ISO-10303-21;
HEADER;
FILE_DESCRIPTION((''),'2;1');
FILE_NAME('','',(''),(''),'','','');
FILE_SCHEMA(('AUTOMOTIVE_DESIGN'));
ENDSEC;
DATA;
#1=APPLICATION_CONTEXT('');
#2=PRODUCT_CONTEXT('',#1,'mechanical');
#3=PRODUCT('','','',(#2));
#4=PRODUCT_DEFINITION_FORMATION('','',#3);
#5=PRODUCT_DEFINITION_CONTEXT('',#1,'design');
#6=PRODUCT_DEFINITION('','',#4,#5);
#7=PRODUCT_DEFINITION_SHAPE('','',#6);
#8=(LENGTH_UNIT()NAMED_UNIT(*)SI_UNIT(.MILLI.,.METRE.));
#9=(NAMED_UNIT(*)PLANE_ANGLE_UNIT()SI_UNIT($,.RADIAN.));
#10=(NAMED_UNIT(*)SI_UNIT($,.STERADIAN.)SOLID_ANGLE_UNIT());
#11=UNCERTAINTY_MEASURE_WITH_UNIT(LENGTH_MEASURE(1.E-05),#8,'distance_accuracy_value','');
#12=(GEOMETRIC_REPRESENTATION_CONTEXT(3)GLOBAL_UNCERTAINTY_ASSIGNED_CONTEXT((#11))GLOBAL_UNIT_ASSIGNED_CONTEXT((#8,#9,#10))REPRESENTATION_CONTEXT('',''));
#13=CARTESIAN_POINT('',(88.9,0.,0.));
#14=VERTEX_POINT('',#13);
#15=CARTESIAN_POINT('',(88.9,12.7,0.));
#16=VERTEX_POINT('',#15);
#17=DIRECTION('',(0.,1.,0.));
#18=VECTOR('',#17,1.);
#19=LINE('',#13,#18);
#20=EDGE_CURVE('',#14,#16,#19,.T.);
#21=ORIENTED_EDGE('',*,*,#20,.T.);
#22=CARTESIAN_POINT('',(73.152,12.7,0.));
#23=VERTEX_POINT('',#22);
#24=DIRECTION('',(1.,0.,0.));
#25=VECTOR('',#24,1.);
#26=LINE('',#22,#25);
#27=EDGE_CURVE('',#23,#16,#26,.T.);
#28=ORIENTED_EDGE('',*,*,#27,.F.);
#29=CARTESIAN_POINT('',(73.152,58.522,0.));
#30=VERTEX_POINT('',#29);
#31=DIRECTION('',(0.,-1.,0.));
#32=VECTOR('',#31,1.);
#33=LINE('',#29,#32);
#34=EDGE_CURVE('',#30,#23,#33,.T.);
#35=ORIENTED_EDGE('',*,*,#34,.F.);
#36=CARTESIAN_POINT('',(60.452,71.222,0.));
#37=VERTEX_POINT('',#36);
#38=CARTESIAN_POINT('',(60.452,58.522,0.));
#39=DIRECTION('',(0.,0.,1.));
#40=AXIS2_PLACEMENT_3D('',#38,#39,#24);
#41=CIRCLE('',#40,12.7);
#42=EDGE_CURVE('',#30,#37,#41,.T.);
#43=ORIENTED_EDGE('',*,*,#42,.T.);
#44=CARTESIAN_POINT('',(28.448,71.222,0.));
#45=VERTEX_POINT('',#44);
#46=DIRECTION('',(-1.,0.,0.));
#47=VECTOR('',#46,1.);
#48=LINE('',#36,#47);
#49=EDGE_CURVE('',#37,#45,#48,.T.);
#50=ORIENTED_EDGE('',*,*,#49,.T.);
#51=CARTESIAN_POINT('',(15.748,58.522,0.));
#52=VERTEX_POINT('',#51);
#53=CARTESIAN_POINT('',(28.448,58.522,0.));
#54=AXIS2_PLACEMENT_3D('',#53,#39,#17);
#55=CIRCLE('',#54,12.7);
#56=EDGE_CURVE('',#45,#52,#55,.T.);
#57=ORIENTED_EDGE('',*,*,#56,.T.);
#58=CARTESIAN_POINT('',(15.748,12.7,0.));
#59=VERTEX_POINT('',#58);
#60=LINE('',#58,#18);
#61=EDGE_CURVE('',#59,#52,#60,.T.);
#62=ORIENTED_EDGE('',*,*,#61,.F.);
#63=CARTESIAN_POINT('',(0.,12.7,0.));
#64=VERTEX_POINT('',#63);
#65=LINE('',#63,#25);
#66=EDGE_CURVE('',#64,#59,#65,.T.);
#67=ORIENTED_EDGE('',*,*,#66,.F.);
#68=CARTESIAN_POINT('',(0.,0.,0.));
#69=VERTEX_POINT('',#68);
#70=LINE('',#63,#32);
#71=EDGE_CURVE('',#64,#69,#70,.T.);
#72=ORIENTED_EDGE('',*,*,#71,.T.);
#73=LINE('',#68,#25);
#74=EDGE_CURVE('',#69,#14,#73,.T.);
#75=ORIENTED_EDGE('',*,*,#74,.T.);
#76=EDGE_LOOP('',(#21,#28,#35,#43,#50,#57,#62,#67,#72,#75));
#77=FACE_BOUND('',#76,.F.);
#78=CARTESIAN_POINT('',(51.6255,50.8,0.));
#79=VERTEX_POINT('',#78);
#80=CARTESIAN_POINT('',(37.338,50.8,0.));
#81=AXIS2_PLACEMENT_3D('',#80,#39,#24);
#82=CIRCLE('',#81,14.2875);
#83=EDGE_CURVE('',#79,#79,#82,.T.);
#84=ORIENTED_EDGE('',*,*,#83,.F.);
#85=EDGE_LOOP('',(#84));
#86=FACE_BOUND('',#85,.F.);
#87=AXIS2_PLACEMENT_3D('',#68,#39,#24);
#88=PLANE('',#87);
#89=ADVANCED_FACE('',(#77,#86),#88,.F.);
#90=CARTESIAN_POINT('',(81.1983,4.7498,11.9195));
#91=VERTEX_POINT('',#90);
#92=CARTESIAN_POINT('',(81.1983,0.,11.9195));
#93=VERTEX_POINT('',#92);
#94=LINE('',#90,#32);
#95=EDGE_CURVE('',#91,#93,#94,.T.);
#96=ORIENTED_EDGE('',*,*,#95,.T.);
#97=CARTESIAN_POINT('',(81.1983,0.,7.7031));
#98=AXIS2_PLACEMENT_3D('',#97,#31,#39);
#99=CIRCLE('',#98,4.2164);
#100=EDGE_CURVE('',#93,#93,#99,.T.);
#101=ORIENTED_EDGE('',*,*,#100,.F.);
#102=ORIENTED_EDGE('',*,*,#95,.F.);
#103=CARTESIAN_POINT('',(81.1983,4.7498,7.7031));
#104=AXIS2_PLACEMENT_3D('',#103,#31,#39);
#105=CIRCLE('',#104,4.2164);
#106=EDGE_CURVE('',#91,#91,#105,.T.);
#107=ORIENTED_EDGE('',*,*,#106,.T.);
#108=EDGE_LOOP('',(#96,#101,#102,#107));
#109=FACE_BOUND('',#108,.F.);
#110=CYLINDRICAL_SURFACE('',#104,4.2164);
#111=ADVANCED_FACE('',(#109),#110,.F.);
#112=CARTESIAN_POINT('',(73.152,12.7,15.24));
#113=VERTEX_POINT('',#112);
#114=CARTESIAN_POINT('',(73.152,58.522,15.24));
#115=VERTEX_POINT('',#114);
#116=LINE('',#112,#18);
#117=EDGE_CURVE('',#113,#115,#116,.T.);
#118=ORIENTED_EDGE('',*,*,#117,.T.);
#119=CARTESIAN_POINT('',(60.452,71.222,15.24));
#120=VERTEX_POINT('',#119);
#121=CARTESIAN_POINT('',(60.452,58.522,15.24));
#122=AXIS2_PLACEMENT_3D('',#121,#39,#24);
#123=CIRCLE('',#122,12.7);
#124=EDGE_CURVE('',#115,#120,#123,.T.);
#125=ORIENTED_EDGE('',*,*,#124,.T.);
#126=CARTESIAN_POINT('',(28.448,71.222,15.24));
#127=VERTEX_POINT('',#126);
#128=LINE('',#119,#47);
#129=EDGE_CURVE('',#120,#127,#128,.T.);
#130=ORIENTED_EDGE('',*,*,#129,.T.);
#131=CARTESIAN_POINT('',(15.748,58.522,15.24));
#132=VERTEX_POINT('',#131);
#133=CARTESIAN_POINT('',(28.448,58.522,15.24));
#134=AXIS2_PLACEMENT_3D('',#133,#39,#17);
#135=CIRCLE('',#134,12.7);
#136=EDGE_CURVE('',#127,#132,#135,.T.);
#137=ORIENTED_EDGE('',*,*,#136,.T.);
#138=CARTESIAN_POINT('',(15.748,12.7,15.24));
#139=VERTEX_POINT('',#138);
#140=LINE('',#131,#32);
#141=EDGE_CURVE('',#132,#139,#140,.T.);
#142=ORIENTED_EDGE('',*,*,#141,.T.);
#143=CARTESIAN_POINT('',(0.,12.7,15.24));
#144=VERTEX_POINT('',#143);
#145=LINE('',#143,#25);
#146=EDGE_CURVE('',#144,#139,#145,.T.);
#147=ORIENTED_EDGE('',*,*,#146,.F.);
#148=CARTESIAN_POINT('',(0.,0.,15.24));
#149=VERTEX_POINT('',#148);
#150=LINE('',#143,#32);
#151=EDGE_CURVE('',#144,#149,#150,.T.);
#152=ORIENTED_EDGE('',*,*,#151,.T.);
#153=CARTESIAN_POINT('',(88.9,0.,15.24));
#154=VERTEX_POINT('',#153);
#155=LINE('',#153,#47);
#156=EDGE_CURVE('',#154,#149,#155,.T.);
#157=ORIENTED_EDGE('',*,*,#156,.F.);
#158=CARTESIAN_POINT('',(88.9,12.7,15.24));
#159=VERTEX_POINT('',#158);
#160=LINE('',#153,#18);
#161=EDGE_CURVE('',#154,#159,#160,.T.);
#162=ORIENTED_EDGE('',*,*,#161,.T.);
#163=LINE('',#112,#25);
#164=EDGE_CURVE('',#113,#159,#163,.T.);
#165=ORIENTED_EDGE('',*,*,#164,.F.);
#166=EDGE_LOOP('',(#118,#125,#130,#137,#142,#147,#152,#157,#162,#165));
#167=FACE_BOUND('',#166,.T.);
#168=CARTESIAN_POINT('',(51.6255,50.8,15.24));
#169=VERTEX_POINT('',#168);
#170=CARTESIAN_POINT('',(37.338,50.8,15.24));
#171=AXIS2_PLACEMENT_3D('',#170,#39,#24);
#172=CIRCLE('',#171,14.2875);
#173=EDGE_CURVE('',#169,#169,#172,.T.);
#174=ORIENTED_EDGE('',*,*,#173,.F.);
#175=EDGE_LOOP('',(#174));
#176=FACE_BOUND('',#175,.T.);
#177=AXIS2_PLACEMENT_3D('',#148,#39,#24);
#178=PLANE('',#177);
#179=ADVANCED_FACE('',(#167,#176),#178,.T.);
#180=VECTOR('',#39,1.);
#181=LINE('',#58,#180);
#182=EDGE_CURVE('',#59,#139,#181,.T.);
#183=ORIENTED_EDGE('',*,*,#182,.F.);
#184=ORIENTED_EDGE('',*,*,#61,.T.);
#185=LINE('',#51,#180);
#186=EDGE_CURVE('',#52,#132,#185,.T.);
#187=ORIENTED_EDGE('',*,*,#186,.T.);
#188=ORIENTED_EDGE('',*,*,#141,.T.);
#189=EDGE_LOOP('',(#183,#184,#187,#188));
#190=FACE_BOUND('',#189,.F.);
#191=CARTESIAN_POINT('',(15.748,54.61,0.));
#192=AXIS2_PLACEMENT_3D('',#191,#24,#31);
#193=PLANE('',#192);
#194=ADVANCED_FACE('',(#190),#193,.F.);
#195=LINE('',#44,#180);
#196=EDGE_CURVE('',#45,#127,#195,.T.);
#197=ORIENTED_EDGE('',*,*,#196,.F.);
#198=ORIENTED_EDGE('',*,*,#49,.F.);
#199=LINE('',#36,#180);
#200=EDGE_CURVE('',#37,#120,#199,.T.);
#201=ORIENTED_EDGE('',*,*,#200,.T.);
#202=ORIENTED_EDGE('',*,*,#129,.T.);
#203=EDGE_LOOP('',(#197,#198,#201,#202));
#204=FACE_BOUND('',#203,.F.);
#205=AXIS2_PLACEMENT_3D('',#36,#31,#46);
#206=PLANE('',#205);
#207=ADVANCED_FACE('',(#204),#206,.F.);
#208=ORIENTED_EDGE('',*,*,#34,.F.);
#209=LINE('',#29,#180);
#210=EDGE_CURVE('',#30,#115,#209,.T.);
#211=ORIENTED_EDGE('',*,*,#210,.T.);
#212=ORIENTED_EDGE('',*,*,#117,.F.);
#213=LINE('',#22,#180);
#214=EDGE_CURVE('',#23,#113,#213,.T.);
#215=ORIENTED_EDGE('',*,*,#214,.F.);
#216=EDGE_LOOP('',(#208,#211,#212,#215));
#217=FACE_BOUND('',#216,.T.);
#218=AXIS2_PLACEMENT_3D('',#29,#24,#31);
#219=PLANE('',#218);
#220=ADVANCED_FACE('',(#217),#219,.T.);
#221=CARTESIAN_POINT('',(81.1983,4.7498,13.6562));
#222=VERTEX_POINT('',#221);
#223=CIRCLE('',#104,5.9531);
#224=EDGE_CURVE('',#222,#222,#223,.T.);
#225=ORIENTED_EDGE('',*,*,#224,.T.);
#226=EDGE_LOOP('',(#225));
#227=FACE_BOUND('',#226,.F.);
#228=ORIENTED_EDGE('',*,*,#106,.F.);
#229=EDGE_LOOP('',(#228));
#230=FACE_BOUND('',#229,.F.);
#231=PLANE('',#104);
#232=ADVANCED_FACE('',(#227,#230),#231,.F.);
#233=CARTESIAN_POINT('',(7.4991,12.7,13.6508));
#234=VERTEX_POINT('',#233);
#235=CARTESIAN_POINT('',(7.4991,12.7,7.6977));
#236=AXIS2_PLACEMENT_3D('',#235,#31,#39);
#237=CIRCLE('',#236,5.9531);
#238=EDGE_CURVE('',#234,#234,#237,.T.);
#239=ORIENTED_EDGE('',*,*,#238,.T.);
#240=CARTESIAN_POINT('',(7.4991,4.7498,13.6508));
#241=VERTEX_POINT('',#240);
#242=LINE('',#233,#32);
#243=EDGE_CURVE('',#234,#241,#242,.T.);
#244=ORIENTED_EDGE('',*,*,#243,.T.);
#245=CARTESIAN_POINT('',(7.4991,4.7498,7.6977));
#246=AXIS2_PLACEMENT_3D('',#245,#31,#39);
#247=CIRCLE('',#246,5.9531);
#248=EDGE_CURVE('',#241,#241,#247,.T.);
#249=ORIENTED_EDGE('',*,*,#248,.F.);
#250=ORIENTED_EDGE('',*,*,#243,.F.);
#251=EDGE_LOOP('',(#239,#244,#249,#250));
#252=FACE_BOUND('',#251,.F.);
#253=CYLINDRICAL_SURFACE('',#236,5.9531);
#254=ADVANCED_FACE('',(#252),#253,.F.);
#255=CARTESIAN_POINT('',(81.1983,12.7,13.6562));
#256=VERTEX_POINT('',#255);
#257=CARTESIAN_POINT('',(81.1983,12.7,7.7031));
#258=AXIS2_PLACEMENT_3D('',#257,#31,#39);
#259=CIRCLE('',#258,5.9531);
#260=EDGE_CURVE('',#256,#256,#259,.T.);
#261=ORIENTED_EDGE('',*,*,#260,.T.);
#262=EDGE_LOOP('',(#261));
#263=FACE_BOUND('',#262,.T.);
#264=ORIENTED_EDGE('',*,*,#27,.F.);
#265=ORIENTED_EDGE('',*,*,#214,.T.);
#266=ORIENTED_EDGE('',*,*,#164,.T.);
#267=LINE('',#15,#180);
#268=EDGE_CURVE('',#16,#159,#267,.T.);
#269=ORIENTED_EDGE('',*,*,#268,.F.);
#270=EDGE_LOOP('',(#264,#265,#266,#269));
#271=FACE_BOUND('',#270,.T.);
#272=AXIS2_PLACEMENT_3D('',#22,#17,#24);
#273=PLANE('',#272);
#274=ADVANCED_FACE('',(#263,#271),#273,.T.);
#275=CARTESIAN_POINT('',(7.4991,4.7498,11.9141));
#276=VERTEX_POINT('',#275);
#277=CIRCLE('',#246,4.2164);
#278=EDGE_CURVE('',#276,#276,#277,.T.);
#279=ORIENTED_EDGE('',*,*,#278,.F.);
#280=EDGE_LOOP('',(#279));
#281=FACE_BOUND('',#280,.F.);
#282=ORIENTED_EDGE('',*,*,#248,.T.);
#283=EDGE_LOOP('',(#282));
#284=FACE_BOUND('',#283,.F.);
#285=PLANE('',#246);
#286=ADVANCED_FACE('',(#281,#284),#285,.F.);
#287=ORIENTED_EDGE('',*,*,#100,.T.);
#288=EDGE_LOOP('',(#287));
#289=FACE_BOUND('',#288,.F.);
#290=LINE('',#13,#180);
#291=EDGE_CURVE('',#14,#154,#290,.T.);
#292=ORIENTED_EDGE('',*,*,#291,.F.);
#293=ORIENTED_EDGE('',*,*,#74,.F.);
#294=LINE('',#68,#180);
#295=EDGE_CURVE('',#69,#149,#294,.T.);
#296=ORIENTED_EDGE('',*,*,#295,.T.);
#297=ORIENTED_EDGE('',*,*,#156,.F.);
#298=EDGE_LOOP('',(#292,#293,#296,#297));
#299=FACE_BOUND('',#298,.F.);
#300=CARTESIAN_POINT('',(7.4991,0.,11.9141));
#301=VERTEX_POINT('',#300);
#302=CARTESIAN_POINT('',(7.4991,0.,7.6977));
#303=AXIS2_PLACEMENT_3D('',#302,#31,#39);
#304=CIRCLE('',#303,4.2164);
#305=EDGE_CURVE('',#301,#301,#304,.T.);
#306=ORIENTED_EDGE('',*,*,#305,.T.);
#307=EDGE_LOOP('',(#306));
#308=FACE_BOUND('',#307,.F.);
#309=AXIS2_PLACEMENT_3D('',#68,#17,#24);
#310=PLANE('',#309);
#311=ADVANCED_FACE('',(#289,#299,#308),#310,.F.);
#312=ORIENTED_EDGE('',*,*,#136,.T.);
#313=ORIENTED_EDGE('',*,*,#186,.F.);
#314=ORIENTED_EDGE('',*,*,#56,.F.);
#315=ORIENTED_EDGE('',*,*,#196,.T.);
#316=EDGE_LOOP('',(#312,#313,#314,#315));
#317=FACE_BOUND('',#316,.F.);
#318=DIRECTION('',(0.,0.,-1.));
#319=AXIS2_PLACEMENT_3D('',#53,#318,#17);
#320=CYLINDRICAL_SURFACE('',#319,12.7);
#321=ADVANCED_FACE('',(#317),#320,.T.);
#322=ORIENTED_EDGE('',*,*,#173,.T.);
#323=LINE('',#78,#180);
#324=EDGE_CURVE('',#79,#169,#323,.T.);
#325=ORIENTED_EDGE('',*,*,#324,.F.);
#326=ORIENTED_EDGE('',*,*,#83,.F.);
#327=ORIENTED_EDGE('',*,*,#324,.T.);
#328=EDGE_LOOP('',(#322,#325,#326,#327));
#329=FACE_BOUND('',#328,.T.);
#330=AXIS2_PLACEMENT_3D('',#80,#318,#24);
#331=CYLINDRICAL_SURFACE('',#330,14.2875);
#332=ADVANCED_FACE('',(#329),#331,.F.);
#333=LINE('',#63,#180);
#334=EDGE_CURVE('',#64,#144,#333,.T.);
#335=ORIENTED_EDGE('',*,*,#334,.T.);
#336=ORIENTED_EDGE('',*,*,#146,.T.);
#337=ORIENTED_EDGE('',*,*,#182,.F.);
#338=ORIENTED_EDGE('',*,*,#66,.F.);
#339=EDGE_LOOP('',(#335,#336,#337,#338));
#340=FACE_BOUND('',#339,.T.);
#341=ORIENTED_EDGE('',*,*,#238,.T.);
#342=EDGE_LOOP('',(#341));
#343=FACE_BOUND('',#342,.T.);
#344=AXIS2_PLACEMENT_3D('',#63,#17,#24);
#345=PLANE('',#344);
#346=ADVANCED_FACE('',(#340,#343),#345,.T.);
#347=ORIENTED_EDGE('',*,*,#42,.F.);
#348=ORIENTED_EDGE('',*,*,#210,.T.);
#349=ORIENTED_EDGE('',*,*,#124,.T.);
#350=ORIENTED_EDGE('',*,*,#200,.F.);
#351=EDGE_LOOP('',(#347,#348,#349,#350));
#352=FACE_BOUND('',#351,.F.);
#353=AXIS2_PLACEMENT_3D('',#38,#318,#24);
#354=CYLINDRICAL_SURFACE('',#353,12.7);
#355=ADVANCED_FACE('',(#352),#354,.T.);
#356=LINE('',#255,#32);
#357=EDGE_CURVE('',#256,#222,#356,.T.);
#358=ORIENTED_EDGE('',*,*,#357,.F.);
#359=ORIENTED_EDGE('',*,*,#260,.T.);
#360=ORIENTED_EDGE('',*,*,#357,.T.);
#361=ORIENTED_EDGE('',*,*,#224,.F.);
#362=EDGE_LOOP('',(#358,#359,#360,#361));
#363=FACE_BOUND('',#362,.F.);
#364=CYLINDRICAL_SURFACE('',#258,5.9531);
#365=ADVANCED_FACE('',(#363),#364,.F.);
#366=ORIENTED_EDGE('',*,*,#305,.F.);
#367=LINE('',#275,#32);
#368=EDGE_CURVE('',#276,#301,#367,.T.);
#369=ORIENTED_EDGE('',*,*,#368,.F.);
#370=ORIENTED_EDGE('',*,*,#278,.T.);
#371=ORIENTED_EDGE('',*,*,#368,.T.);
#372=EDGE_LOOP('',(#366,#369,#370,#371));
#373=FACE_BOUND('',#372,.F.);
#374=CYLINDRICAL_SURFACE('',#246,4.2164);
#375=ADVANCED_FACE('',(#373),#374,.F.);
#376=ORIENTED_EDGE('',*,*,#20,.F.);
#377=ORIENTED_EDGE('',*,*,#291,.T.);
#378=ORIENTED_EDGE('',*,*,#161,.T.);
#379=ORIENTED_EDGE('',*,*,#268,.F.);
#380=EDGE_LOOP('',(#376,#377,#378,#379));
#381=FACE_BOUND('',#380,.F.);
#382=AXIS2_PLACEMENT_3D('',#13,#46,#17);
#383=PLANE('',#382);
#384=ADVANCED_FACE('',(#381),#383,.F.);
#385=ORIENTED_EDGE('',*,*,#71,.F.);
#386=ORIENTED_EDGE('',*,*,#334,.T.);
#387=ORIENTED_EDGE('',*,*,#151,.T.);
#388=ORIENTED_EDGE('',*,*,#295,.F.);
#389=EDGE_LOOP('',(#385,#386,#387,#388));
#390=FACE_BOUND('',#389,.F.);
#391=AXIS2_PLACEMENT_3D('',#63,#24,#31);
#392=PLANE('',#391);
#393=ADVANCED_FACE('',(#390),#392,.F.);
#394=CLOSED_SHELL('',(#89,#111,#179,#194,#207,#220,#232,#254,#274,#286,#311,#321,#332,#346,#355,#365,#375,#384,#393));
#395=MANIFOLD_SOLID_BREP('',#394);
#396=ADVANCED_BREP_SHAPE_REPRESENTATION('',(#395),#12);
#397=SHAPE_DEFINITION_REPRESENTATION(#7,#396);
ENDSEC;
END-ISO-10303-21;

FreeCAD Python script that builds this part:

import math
import FreeCAD as App
import Part
import Sketcher
from FreeCAD import Vector
Q = App.Units.Quantity

doc = App.newDocument("Part")
body = doc.addObject("PartDesign::Body", "Body")

# Sketch on XY plane
sketch1 = doc.addObject("Sketcher::SketchObject", "Sketch")
body.addObject(sketch1)
sketch1.AttachmentSupport = (doc.XY_Plane, [""])
sketch1.MapMode = "FlatFace"
sketch1.addGeometry(Part.LineSegment(Vector(0, 13, 0), Vector(0, 0, 0)), False)
sketch1.addGeometry(Part.LineSegment(Vector(0, 0, 0), Vector(89, 0, 0)), False)
sketch1.addGeometry(Part.LineSegment(Vector(89, 0, 0), Vector(89, 13, 0)), False)
sketch1.addGeometry(Part.LineSegment(Vector(89, 13, 0), Vector(73, 13, 0)), False)
sketch1.addGeometry(Part.LineSegment(Vector(73, 13, 0), Vector(73, 59, 0)), False)
sketch1.addGeometry(Part.ArcOfCircle(Part.Circle(Vector(60, 59, 0), Vector(0, 0, 1), 13), math.radians(0), math.radians(90)), False)
sketch1.addGeometry(Part.LineSegment(Vector(60, 71, 0), Vector(28, 71, 0)), False)
sketch1.addGeometry(Part.ArcOfCircle(Part.Circle(Vector(28, 59, 0), Vector(0, 0, 1), 13), math.radians(90), math.radians(180)), False)
sketch1.addGeometry(Part.LineSegment(Vector(16, 59, 0), Vector(16, 13, 0)), False)
sketch1.addGeometry(Part.LineSegment(Vector(16, 13, 0), Vector(0, 13, 0)), False)
sketch1.addGeometry(Part.Circle(Vector(37, 51, 0), Vector(0, 0, 1), 14), False)
sketch1.addConstraint(Sketcher.Constraint("Coincident", 0, 2, 1, 1))
sketch1.addConstraint(Sketcher.Constraint("Coincident", 1, 2, 2, 1))
sketch1.addConstraint(Sketcher.Constraint("Coincident", 2, 2, 3, 1))
sketch1.addConstraint(Sketcher.Constraint("Coincident", 3, 2, 4, 1))
sketch1.addConstraint(Sketcher.Constraint("Tangent", 4, 2, 5, 1))
sketch1.addConstraint(Sketcher.Constraint("Tangent", 5, 2, 6, 1))
sketch1.addConstraint(Sketcher.Constraint("Tangent", 6, 2, 7, 1))
sketch1.addConstraint(Sketcher.Constraint("Tangent", 7, 2, 8, 1))
sketch1.addConstraint(Sketcher.Constraint("Coincident", 8, 2, 9, 1))
sketch1.addConstraint(Sketcher.Constraint("Coincident", 9, 2, 0, 1))
sketch1.addConstraint(Sketcher.Constraint("Vertical", 0))
sketch1.addConstraint(Sketcher.Constraint("Horizontal", 1))
sketch1.addConstraint(Sketcher.Constraint("Vertical", 2))
sketch1.addConstraint(Sketcher.Constraint("Horizontal", 3))
sketch1.addConstraint(Sketcher.Constraint("Vertical", 4))
sketch1.addConstraint(Sketcher.Constraint("Horizontal", 6))
sketch1.addConstraint(Sketcher.Constraint("Vertical", 8))
sketch1.addConstraint(Sketcher.Constraint("Horizontal", 9))
sketch1.addConstraint(Sketcher.Constraint("Coincident", 0, 2, -1, 1))
sketch1.addConstraint(Sketcher.Constraint("Equal", 5, 7))
sketch1.addConstraint(Sketcher.Constraint("Horizontal", 3, 2, 8, 2))
sketch1.addConstraint(Sketcher.Constraint("Equal", 3, 9))
sketch1.addConstraint(Sketcher.Constraint("Radius", 5, Q("0.5 in")))
sketch1.addConstraint(Sketcher.Constraint("Diameter", 10, Q("1.125 in")))
sketch1.addConstraint(Sketcher.Constraint("DistanceX", 1, 1, 1, 2, Q("3.5 in")))
sketch1.addConstraint(Sketcher.Constraint("DistanceY", 0, 2, 0, 1, Q("0.5 in")))
sketch1.addConstraint(Sketcher.Constraint("DistanceX", 3, 2, 3, 1, Q("0.62 in")))
sketch1.addConstraint(Sketcher.Constraint("DistanceX", 7, 2, 10, 3, Q("0.85 in")))
sketch1.addConstraint(Sketcher.Constraint("DistanceY", -1, 1, 10, 3, Q("2 in")))
sketch1.addConstraint(Sketcher.Constraint("DistanceY", 4, 1, 4, 2, Q("45.822 mm")))
pad1 = doc.addObject("PartDesign::Pad", "Pad")
body.addObject(pad1)
pad1.Profile = sketch1
pad1.Length = Q("0.6 in")

# Sketch on XZ plane
sketch2 = doc.addObject("Sketcher::SketchObject", "Sketch001")
body.addObject(sketch2)
sketch2.AttachmentSupport = (doc.XZ_Plane, [""])
sketch2.MapMode = "FlatFace"
sketch2.AttachmentOffset = App.Placement(Vector(0, 0, -0.5 * 25.4), App.Rotation())
sketch2.addGeometry(Part.Circle(Vector(81.2, 7.7, 0), Vector(0, 0, 1), 4.2), False)
sketch2.addConstraint(Sketcher.Constraint("Diameter", 0, Q("0.332 in")))
sketch2.addConstraint(Sketcher.Constraint("DistanceX", -1, 1, 0, 3, Q("81.1983 mm")))
sketch2.addConstraint(Sketcher.Constraint("DistanceY", -1, 1, 0, 3, Q("7.703 mm")))
doc.recompute()
hole = doc.addObject("PartDesign::Hole", "Hole")
body.addObject(hole)
hole.Profile = sketch2
hole.ThreadType = "None"
hole.Diameter = Q("0.332 in")
hole.DepthType = "ThroughAll"
hole.HoleCutType = "Counterbore"
hole.HoleCutDiameter = Q("0.468748 in")
hole.HoleCutDepth = Q("0.313 in")
hole.Reversed = True

# Sketch on XZ plane
sketch3 = doc.addObject("Sketcher::SketchObject", "Sketch002")
body.addObject(sketch3)
sketch3.AttachmentSupport = (doc.XZ_Plane, [""])
sketch3.MapMode = "FlatFace"
sketch3.AttachmentOffset = App.Placement(Vector(0, 0, -0.5 * 25.4), App.Rotation())
sketch3.addGeometry(Part.Circle(Vector(7.5, 7.7, 0), Vector(0, 0, 1), 4.2), False)
sketch3.addConstraint(Sketcher.Constraint("Diameter", 0, Q("0.332 in")))
sketch3.addConstraint(Sketcher.Constraint("DistanceX", -1, 1, 0, 3, Q("7.499 mm")))
sketch3.addConstraint(Sketcher.Constraint("DistanceY", -1, 1, 0, 3, Q("7.6977 mm")))
doc.recompute()
hole2 = doc.addObject("PartDesign::Hole", "Hole001")
body.addObject(hole2)
hole2.Profile = sketch3
hole2.ThreadType = "None"
hole2.Diameter = Q("0.332 in")
hole2.DepthType = "ThroughAll"
hole2.HoleCutType = "Counterbore"
hole2.HoleCutDiameter = Q("0.468748 in")
hole2.HoleCutDepth = Q("0.313 in")
hole2.Reversed = True

doc.recompute()
